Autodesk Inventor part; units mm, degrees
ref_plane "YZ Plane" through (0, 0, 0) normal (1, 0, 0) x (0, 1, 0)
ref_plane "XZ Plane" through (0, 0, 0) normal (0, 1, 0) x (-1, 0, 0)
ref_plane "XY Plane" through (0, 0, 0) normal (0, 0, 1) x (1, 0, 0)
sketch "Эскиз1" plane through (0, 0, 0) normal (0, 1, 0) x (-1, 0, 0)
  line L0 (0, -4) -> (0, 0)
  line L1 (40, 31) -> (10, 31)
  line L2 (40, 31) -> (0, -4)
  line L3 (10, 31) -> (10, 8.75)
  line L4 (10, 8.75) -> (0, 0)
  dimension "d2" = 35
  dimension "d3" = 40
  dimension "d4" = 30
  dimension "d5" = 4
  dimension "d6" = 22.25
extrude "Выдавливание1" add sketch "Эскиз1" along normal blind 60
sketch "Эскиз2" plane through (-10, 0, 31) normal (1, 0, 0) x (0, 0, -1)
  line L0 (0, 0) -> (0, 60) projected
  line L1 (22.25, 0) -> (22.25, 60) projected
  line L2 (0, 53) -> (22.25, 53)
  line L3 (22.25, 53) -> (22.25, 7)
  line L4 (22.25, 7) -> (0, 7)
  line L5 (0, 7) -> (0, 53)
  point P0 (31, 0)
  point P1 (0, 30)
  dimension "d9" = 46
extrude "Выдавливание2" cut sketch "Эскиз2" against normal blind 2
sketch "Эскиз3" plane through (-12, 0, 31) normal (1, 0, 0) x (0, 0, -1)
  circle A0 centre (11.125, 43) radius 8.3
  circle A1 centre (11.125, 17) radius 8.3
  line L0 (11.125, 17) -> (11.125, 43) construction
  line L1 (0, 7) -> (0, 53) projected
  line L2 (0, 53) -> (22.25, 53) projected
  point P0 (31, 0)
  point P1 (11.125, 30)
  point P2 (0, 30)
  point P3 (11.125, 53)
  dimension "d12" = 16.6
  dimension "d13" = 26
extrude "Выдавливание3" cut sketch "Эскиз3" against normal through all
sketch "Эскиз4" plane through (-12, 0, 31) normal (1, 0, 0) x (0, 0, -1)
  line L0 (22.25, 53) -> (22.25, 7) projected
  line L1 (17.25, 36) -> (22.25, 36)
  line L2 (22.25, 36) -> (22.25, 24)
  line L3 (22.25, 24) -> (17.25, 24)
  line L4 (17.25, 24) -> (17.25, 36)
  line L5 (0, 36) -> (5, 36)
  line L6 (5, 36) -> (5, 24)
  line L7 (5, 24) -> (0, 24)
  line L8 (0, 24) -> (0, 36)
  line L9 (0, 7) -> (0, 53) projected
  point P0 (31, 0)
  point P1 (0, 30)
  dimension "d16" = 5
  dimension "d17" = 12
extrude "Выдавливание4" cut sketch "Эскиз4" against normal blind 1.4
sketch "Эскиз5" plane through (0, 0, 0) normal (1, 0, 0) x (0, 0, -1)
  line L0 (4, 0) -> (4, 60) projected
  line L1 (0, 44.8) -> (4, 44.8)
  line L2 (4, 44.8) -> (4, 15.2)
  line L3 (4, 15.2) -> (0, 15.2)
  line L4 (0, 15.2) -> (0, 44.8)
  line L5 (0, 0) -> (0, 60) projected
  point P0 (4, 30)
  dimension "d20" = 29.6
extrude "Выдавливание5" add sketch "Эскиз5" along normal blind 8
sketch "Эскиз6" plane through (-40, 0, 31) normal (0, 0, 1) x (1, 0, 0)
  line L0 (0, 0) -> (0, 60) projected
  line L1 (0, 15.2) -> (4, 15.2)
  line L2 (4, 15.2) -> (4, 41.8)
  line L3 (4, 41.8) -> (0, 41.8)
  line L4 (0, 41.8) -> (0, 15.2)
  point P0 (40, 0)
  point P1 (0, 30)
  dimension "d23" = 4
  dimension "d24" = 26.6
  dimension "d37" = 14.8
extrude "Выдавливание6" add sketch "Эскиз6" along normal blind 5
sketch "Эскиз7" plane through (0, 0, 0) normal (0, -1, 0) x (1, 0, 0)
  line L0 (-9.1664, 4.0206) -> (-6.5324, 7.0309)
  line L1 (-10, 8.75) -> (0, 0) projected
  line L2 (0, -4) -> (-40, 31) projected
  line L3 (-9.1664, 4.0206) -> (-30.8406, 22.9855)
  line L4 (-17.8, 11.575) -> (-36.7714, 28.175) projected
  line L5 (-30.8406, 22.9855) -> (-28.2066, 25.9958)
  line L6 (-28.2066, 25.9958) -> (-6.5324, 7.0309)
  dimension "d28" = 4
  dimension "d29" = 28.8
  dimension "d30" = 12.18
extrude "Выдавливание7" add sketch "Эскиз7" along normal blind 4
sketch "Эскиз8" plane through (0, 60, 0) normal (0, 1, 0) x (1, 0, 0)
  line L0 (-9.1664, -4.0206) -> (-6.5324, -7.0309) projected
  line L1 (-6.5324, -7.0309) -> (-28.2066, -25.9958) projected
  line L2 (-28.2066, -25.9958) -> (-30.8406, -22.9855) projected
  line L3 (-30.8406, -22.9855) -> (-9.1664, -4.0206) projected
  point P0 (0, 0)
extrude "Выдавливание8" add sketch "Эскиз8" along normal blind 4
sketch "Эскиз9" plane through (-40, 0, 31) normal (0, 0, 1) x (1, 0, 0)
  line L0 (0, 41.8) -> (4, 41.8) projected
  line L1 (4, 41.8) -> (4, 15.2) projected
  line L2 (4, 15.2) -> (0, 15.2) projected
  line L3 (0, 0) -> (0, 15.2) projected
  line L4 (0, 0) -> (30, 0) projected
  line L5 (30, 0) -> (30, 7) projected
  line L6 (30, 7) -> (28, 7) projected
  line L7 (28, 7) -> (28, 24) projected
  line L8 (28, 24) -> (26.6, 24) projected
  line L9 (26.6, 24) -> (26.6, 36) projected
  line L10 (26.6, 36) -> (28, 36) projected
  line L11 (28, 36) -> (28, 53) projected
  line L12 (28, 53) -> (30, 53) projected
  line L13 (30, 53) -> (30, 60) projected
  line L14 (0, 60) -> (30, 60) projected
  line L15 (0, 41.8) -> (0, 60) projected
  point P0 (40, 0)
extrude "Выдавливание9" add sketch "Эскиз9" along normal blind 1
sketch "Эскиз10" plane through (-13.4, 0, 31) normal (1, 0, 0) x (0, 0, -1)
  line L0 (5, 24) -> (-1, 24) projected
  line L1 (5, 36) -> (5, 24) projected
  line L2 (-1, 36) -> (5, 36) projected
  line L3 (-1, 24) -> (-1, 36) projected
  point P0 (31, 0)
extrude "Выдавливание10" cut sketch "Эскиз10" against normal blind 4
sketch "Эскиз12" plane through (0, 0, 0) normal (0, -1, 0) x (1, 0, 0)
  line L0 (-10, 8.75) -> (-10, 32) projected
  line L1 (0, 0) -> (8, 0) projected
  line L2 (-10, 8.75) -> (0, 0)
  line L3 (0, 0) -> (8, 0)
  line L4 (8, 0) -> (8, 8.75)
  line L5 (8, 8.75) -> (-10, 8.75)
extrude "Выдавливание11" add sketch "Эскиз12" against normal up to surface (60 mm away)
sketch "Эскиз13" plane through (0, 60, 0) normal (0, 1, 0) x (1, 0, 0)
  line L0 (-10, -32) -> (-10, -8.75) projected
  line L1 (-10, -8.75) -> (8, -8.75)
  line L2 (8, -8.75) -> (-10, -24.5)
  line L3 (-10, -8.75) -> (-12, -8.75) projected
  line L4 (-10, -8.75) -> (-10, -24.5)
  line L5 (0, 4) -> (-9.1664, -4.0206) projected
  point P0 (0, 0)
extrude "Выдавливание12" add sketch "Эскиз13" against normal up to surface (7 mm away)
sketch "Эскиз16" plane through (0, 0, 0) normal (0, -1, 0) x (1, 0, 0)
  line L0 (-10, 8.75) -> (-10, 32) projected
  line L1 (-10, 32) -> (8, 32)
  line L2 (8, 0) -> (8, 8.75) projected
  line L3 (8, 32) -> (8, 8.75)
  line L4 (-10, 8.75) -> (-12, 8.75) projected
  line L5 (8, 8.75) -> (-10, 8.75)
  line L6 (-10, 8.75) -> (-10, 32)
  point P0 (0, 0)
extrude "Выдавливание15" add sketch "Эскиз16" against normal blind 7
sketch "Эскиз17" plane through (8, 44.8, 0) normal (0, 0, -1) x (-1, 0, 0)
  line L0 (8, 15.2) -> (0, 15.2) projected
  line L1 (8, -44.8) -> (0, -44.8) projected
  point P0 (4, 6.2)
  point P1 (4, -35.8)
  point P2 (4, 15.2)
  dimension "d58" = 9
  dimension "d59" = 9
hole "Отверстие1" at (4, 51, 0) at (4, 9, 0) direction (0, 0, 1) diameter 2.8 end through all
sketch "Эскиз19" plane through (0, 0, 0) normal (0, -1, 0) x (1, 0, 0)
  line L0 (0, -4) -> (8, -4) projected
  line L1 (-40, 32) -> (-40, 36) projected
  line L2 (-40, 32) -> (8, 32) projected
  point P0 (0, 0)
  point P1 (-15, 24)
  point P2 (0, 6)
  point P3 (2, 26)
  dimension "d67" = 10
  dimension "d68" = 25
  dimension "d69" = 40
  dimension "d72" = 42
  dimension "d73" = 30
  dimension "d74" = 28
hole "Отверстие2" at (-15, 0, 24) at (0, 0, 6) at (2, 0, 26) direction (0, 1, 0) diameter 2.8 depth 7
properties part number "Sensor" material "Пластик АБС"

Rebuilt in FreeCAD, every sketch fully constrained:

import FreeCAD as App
import Part
import Sketcher


def add_polygon(sketch, points):
    """Adds a closed chain of lines whose ends are joined by coincident constraints."""
    first, n = sketch.GeometryCount, len(points)
    for a, b in zip(points, points[1:] + points[:1]):
        sketch.addGeometry(Part.LineSegment(App.Vector(*a, 0), App.Vector(*b, 0)), False)
    for i in range(n):
        sketch.addConstraint(Sketcher.Constraint("Coincident", first + i, 2, first + (i + 1) % n, 1))

doc = App.newDocument("Part")
body = doc.addObject("PartDesign::Body", "Body")

sketch1 = body.newObject("Sketcher::SketchObject", "Sketch")
sketch1.AttachmentSupport = (doc.getObject("XZ_Plane"), [""])
sketch1.MapMode = "FlatFace"
add_polygon(sketch1, [(0, 0), (0, -4), (-40, 31), (-10, 31), (-10, 8.8)])
sketch1.addConstraint([
    Sketcher.Constraint("Vertical", 0),
    Sketcher.Constraint("Horizontal", 2),
    Sketcher.Constraint("Vertical", 3),
    Sketcher.Constraint("Coincident", 4, 2, -1, 1),
    Sketcher.Constraint("Parallel", 1, 4),
    Sketcher.Constraint("DistanceX", 2, 1, 2, 2, 30.0),
    Sketcher.Constraint("DistanceY", 0, 2, 0, 1, 4.0),
    Sketcher.Constraint("DistanceX", 1, 2, -1, 1, 40.0),
    Sketcher.Constraint("DistanceY", 0, 2, 1, 2, 35.0),
])
pad1 = body.newObject("PartDesign::Pad", "Pad")
pad1.Profile = sketch1
pad1.Length = 60
pad1.Reversed = True

sketch2 = body.newObject("Sketcher::SketchObject", "Sketch001")
sketch2.AttachmentSupport = (doc.getObject("YZ_Plane"), [""])
sketch2.MapMode = "FlatFace"
sketch2.AttachmentOffset = App.Placement(App.Vector(0, 0, -10), App.Rotation())
add_polygon(sketch2, [(53, 31), (7, 31), (7, 9), (53, 9)])
sketch2.addConstraint([
    Sketcher.Constraint("Horizontal", 0),
    Sketcher.Constraint("Vertical", 1),
    Sketcher.Constraint("Horizontal", 2),
    Sketcher.Constraint("Vertical", 3),
    Sketcher.Constraint("DistanceX", 0, 2, 0, 1, 46.0),
    Sketcher.Constraint("DistanceX", -1, 1, 0, 2, 7.0),
    Sketcher.Constraint("DistanceY", -1, 1, 0, 2, 31.0),
    Sketcher.Constraint("DistanceY", 1, 2, 1, 1, 22.25),
])
pocket1 = body.newObject("PartDesign::Pocket", "Pocket")
pocket1.Profile = sketch2
pocket1.Length = 2

sketch3 = body.newObject("Sketcher::SketchObject", "Sketch002")
sketch3.AttachmentSupport = (doc.getObject("YZ_Plane"), [""])
sketch3.MapMode = "FlatFace"
sketch3.AttachmentOffset = App.Placement(App.Vector(0, 0, -12), App.Rotation())
sketch3.addGeometry([
    Part.Circle(App.Vector(43, 20, 0), App.Vector(0, 0, 1), 8),
    Part.Circle(App.Vector(17, 20, 0), App.Vector(0, 0, 1), 8),
], False)
sketch3.addConstraint([
    Sketcher.Constraint("Equal", 0, 1),
    Sketcher.Constraint("Horizontal", 0, 3, 1, 3),
    Sketcher.Constraint("Diameter", 0, 16.6),
    Sketcher.Constraint("DistanceX", 1, 3, 0, 3, 26.0),
    Sketcher.Constraint("DistanceX", -1, 1, 0, 3, 43.0),
    Sketcher.Constraint("DistanceY", -1, 1, 0, 3, 19.875),
])
pocket2 = body.newObject("PartDesign::Pocket", "Pocket001")
pocket2.Profile = sketch3
pocket2.Type = "ThroughAll"

sketch4 = body.newObject("Sketcher::SketchObject", "Sketch003")
sketch4.AttachmentSupport = (doc.getObject("YZ_Plane"), [""])
sketch4.MapMode = "FlatFace"
sketch4.AttachmentOffset = App.Placement(App.Vector(0, 0, -12), App.Rotation())
add_polygon(sketch4, [(24, 9), (36, 9), (36, 14), (24, 14)])
add_polygon(sketch4, [(36, 26), (36, 31), (24, 31), (24, 26)])
sketch4.addConstraint([
    Sketcher.Constraint("Horizontal", 0),
    Sketcher.Constraint("Vertical", 1),
    Sketcher.Constraint("Horizontal", 2),
    Sketcher.Constraint("Vertical", 3),
    Sketcher.Constraint("Vertical", 4),
    Sketcher.Constraint("Horizontal", 5),
    Sketcher.Constraint("Vertical", 6),
    Sketcher.Constraint("Horizontal", 7),
    Sketcher.Constraint("Vertical", 1, 2, 4, 2),
    Sketcher.Constraint("Vertical", 3, 2, 5, 2),
    Sketcher.Constraint("Equal", 3, 4),
    Sketcher.Constraint("DistanceX", 0, 1, 0, 2, 12.0),
    Sketcher.Constraint("DistanceY", 1, 1, 1, 2, 5.0),
    Sketcher.Constraint("DistanceX", -1, 1, 0, 2, 36.0),
    Sketcher.Constraint("DistanceY", -1, 1, 4, 2, 31.0),
    Sketcher.Constraint("DistanceY", -1, 1, 0, 2, 8.75),
])
pocket3 = body.newObject("PartDesign::Pocket", "Pocket002")
pocket3.Profile = sketch4
pocket3.Length = 1.4

sketch5 = body.newObject("Sketcher::SketchObject", "Sketch004")
sketch5.AttachmentSupport = (doc.getObject("YZ_Plane"), [""])
sketch5.MapMode = "FlatFace"
add_polygon(sketch5, [(15.2, 0), (15.2, -4), (44.8, -4), (44.8, 0)])
sketch5.addConstraint([
    Sketcher.Constraint("Vertical", 0),
    Sketcher.Constraint("Horizontal", 1),
    Sketcher.Constraint("Vertical", 2),
    Sketcher.Constraint("Horizontal", 3),
    Sketcher.Constraint("PointOnObject", 2, 2, -1),
    Sketcher.Constraint("DistanceX", 1, 1, 1, 2, 29.6),
    Sketcher.Constraint("DistanceY", 0, 2, 0, 1, 4.0),
    Sketcher.Constraint("DistanceX", -1, 1, 0, 2, 15.2),
])
pad2 = body.newObject("PartDesign::Pad", "Pad001")
pad2.Profile = sketch5
pad2.Length = 8

sketch6 = body.newObject("Sketcher::SketchObject", "Sketch005")
sketch6.AttachmentSupport = (doc.getObject("XY_Plane"), [""])
sketch6.MapMode = "FlatFace"
sketch6.AttachmentOffset = App.Placement(App.Vector(0, 0, 31), App.Rotation())
add_polygon(sketch6, [(-40, 41.8), (-40, 15.2), (-36, 15.2), (-36, 41.8)])
sketch6.addConstraint([
    Sketcher.Constraint("Vertical", 0),
    Sketcher.Constraint("Horizontal", 1),
    Sketcher.Constraint("Vertical", 2),
    Sketcher.Constraint("Horizontal", 3),
    Sketcher.Constraint("DistanceX", 1, 1, 1, 2, 4.0),
    Sketcher.Constraint("DistanceY", 0, 2, 0, 1, 26.6),
    Sketcher.Constraint("DistanceX", 0, 2, -1, 1, 40.0),
    Sketcher.Constraint("DistanceY", -1, 1, 0, 2, 15.2),
])
pad3 = body.newObject("PartDesign::Pad", "Pad002")
pad3.Profile = sketch6
pad3.Length = 5

sketch7 = body.newObject("Sketcher::SketchObject", "Sketch006")
sketch7.AttachmentSupport = (doc.getObject("XZ_Plane"), [""])
sketch7.MapMode = "FlatFace"
add_polygon(sketch7, [(-30.8, 23), (-9.2, 4), (-6.5, 7), (-28.2, 26)])
sketch7.addConstraint([
    Sketcher.Constraint("Perpendicular", 0, 1),
    Sketcher.Constraint("Perpendicular", 1, 2),
    Sketcher.Constraint("Perpendicular", 2, 3),
    Sketcher.Constraint("Distance", 1, 4.0),
    Sketcher.Constraint("Distance", 0, 28.8),
    Sketcher.Constraint("DistanceY", -1, 1, 1, 2, 7.031),
    Sketcher.Constraint("DistanceX", 0, 2, 1, 2, 2.634),
    Sketcher.Constraint("DistanceX", 0, 2, -1, 1, 9.1664),
])
pad4 = body.newObject("PartDesign::Pad", "Pad003")
pad4.Profile = sketch7
pad4.Length = 4

sketch8 = body.newObject("Sketcher::SketchObject", "Sketch007")
sketch8.AttachmentSupport = (doc.getObject("XZ_Plane"), [""])
sketch8.MapMode = "FlatFace"
sketch8.AttachmentOffset = App.Placement(App.Vector(0, 0, -60), App.Rotation())
add_polygon(sketch8, [(-6.5, 7), (-9.2, 4), (-30.8, 23), (-28.2, 26)])
sketch8.addConstraint([
    Sketcher.Constraint("Perpendicular", 0, 1),
    Sketcher.Constraint("Perpendicular", 1, 2),
    Sketcher.Constraint("Perpendicular", 2, 3),
    Sketcher.Constraint("Distance", 0, 4.0),
    Sketcher.Constraint("Distance", 1, 28.8),
    Sketcher.Constraint("DistanceY", -1, 1, 3, 2, 7.031),
    Sketcher.Constraint("DistanceY", 0, 2, 1, 2, 18.965),
    Sketcher.Constraint("DistanceX", 0, 2, -1, 1, 9.1664),
])
pad5 = body.newObject("PartDesign::Pad", "Pad004")
pad5.Profile = sketch8
pad5.Length = 4
pad5.Reversed = True

sketch9 = body.newObject("Sketcher::SketchObject", "Sketch008")
sketch9.AttachmentSupport = (doc.getObject("XY_Plane"), [""])
sketch9.MapMode = "FlatFace"
sketch9.AttachmentOffset = App.Placement(App.Vector(0, 0, 31), App.Rotation())
add_polygon(sketch9, [(-40, 60), (-40, 41.8), (-36, 41.8), (-36, 15.2), (-40, 15.2), (-40, 0), (-10, 0), (-10, 7), (-12, 7), (-12, 24), (-13.4, 24), (-13.4, 36), (-12, 36), (-12, 53), (-10, 53), (-10, 60)])
sketch9.addConstraint([
    Sketcher.Constraint("Vertical", 0),
    Sketcher.Constraint("Horizontal", 1),
    Sketcher.Constraint("Vertical", 2),
    Sketcher.Constraint("Horizontal", 3),
    Sketcher.Constraint("Vertical", 4),
    Sketcher.Constraint("Horizontal", 5),
    Sketcher.Constraint("Vertical", 6),
    Sketcher.Constraint("Horizontal", 7),
    Sketcher.Constraint("Vertical", 8),
    Sketcher.Constraint("Horizontal", 9),
    Sketcher.Constraint("Vertical", 10),
    Sketcher.Constraint("Horizontal", 11),
    Sketcher.Constraint("Vertical", 12),
    Sketcher.Constraint("Horizontal", 13),
    Sketcher.Constraint("Vertical", 14),
    Sketcher.Constraint("Horizontal", 15),
    Sketcher.Constraint("PointOnObject", 4, 2, -1),
    Sketcher.Constraint("Vertical", 0, 2, 3, 2),
    Sketcher.Constraint("Vertical", 8, 2, 11, 2),
    Sketcher.Constraint("Vertical", 6, 2, 13, 2),
    Sketcher.Constraint("Equal", 8, 12),
    Sketcher.Constraint("Equal", 6, 14),
    Sketcher.Constraint("DistanceX", 1, 1, 1, 2, 4.0),
    Sketcher.Constraint("DistanceX", 5, 1, 5, 2, 30.0),
    Sketcher.Constraint("DistanceX", 7, 2, 7, 1, 2.0),
    Sketcher.Constraint("DistanceY", 6, 1, 6, 2, 7.0),
    Sketcher.Constraint("DistanceY", 8, 1, 8, 2, 17.0),
    Sketcher.Constraint("DistanceY", 10, 1, 10, 2, 12.0),
    Sketcher.Constraint("DistanceX", 9, 2, 9, 1, 1.4),
    Sketcher.Constraint("DistanceY", 0, 2, 0, 1, 18.2),
    Sketcher.Constraint("DistanceY", 2, 2, 2, 1, 26.6),
    Sketcher.Constraint("DistanceX", 0, 2, -1, 1, 40.0),
])
pad6 = body.newObject("PartDesign::Pad", "Pad005")
pad6.Profile = sketch9
pad6.Length = 1

sketch10 = body.newObject("Sketcher::SketchObject", "Sketch009")
sketch10.AttachmentSupport = (doc.getObject("YZ_Plane"), [""])
sketch10.MapMode = "FlatFace"
sketch10.AttachmentOffset = App.Placement(App.Vector(0, 0, -13.4), App.Rotation())
add_polygon(sketch10, [(24, 32), (24, 26), (36, 26), (36, 32)])
sketch10.addConstraint([
    Sketcher.Constraint("Vertical", 0),
    Sketcher.Constraint("Horizontal", 1),
    Sketcher.Constraint("Vertical", 2),
    Sketcher.Constraint("Horizontal", 3),
    Sketcher.Constraint("DistanceX", 1, 1, 1, 2, 12.0),
    Sketcher.Constraint("DistanceY", 0, 2, 0, 1, 6.0),
    Sketcher.Constraint("DistanceX", -1, 1, 0, 2, 24.0),
    Sketcher.Constraint("DistanceY", -1, 1, 0, 2, 26.0),
])
pocket4 = body.newObject("PartDesign::Pocket", "Pocket003")
pocket4.Profile = sketch10
pocket4.Length = 4

sketch11 = body.newObject("Sketcher::SketchObject", "Sketch010")
sketch11.AttachmentSupport = (doc.getObject("XZ_Plane"), [""])
sketch11.MapMode = "FlatFace"
add_polygon(sketch11, [(-10, 9), (0, 0), (8, 0), (8, 9)])
sketch11.addConstraint([
    Sketcher.Constraint("Horizontal", 1),
    Sketcher.Constraint("Vertical", 2),
    Sketcher.Constraint("Horizontal", 3),
    Sketcher.Constraint("Coincident", 0, 2, -1, 1),
    Sketcher.Constraint("DistanceX", 1, 1, 1, 2, 8.0),
    Sketcher.Constraint("DistanceX", 3, 2, 3, 1, 18.0),
    Sketcher.Constraint("DistanceY", 2, 1, 2, 2, 8.75),
])
pad7 = body.newObject("PartDesign::Pad", "Pad006")
pad7.Profile = sketch11
pad7.Length = 60
pad7.Reversed = True

sketch12 = body.newObject("Sketcher::SketchObject", "Sketch011")
sketch12.AttachmentSupport = (doc.getObject("XZ_Plane"), [""])
sketch12.MapMode = "FlatFace"
sketch12.AttachmentOffset = App.Placement(App.Vector(0, 0, -60), App.Rotation())
add_polygon(sketch12, [(-10, 9), (-10, 24), (8, 9)])
sketch12.addConstraint([
    Sketcher.Constraint("Vertical", 0),
    Sketcher.Constraint("Horizontal", 2),
    Sketcher.Constraint("DistanceX", 2, 2, 2, 1, 18.0),
    Sketcher.Constraint("DistanceX", 0, 2, -1, 1, 10.0),
    Sketcher.Constraint("DistanceY", 0, 1, 0, 2, 15.75),
    Sketcher.Constraint("DistanceY", -1, 1, 0, 2, 24.5),
])
pad8 = body.newObject("PartDesign::Pad", "Pad007")
pad8.Profile = sketch12
pad8.Length = 7

sketch13 = body.newObject("Sketcher::SketchObject", "Sketch012")
sketch13.AttachmentSupport = (doc.getObject("XZ_Plane"), [""])
sketch13.MapMode = "FlatFace"
add_polygon(sketch13, [(-10, 32), (-10, 9), (8, 9), (8, 32)])
sketch13.addConstraint([
    Sketcher.Constraint("Vertical", 0),
    Sketcher.Constraint("Horizontal", 1),
    Sketcher.Constraint("Vertical", 2),
    Sketcher.Constraint("Horizontal", 3),
    Sketcher.Constraint("DistanceX", 1, 1, 1, 2, 18.0),
    Sketcher.Constraint("DistanceX", 0, 2, -1, 1, 10.0),
    Sketcher.Constraint("DistanceY", -1, 1, 2, 2, 32.0),
    Sketcher.Constraint("DistanceY", 0, 2, 0, 1, 23.25),
])
pad9 = body.newObject("PartDesign::Pad", "Pad008")
pad9.Profile = sketch13
pad9.Length = 7
pad9.Reversed = True

sketch14 = body.newObject("Sketcher::SketchObject", "Sketch013")
sketch14.AttachmentSupport = (doc.getObject("XY_Plane"), [""])
sketch14.MapMode = "FlatFace"
sketch14.addGeometry([
    Part.Circle(App.Vector(4, 51, 0), App.Vector(0, 0, 1), 1.4),
    Part.Circle(App.Vector(4, 9, 0), App.Vector(0, 0, 1), 1.4),
], False)
sketch14.addConstraint([
    Sketcher.Constraint("Equal", 0, 1),
    Sketcher.Constraint("Vertical", 0, 3, 1, 3),
    Sketcher.Constraint("Diameter", 0, 2.8),
    Sketcher.Constraint("DistanceX", -1, 1, 0, 3, 4.0),
    Sketcher.Constraint("DistanceY", -1, 1, 0, 3, 51.0),
    Sketcher.Constraint("DistanceY", -1, 1, 1, 3, 9.0),
])
doc.recompute()
hole = body.newObject("PartDesign::Hole", "Hole")
hole.Profile = sketch14
hole.ThreadType = "None"
hole.Diameter = 2.8
hole.DepthType = "ThroughAll"
hole.Reversed = True

sketch15 = body.newObject("Sketcher::SketchObject", "Sketch014")
sketch15.AttachmentSupport = (doc.getObject("XZ_Plane"), [""])
sketch15.MapMode = "FlatFace"
sketch15.addGeometry([
    Part.Circle(App.Vector(-15, 24, 0), App.Vector(0, 0, 1), 1.4),
    Part.Circle(App.Vector(0, 6, 0), App.Vector(0, 0, 1), 1.4),
    Part.Circle(App.Vector(2, 26, 0), App.Vector(0, 0, 1), 1.4),
], False)
sketch15.addConstraint([
    Sketcher.Constraint("Equal", 0, 1),
    Sketcher.Constraint("Equal", 1, 2),
    Sketcher.Constraint("PointOnObject", 1, 3, -2),
    Sketcher.Constraint("Diameter", 0, 2.8),
    Sketcher.Constraint("DistanceX", 0, 3, -1, 1, 15.0),
    Sketcher.Constraint("DistanceY", -1, 1, 0, 3, 24.0),
    Sketcher.Constraint("DistanceY", -1, 1, 1, 3, 6.0),
    Sketcher.Constraint("DistanceX", -1, 1, 2, 3, 2.0),
    Sketcher.Constraint("DistanceY", -1, 1, 2, 3, 26.0),
])
doc.recompute()
hole2 = body.newObject("PartDesign::Hole", "Hole001")
hole2.Profile = sketch15
hole2.ThreadType = "None"
hole2.Diameter = 2.8
hole2.DepthType = "Dimension"
hole2.Depth = 7
hole2.DrillPoint = "Flat"

doc.recompute()
